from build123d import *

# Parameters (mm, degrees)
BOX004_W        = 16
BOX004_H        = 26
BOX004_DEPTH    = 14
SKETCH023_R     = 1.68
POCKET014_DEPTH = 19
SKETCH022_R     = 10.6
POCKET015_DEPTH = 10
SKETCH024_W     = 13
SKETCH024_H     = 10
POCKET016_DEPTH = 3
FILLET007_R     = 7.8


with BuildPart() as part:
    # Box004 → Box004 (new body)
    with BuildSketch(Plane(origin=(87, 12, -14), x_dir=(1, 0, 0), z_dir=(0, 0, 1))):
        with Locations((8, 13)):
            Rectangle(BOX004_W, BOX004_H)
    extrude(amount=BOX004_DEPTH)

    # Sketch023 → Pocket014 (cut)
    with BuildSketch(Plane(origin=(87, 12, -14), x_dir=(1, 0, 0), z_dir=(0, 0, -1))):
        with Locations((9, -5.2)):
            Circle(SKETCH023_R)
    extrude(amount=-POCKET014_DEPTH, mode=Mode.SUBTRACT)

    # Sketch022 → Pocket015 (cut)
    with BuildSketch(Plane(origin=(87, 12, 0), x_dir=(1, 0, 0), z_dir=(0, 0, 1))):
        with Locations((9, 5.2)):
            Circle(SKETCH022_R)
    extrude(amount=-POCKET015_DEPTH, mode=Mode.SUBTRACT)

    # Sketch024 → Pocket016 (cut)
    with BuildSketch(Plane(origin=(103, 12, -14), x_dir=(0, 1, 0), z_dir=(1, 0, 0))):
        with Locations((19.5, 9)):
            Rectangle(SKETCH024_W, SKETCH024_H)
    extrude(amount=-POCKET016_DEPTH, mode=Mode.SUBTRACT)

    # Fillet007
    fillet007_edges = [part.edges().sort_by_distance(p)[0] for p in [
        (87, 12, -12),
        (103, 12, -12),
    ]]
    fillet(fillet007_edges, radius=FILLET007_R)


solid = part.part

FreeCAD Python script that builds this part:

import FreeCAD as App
import Part
import Sketcher

V = App.Vector


def edges_at(feature, points):
    """Names of the edges that pass closest to the given points."""
    edges = feature.Shape.Edges
    near = lambda p: min(range(len(edges)), key=lambda i: edges[i].distToShape(Part.Vertex(*p))[0])
    return sorted({f"Edge{near(p) + 1}" for p in points})

doc = App.newDocument("Part")
body = doc.addObject("PartDesign::Body", "Body")

# Sketch on XY plane
sketch1 = doc.addObject("Sketcher::SketchObject", "Sketch")
body.addObject(sketch1)
sketch1.AttachmentSupport = (doc.XY_Plane, [""])
sketch1.MapMode = "FlatFace"
sketch1.AttachmentOffset = App.Placement(V(0, 0, -14), App.Rotation())
sketch1.addGeometry([
    Part.LineSegment(V(87, 38, 0), V(87, 12, 0)),
    Part.LineSegment(V(87, 12, 0), V(103, 12, 0)),
    Part.LineSegment(V(103, 12, 0), V(103, 38, 0)),
    Part.LineSegment(V(103, 38, 0), V(87, 38, 0)),
], False)
sketch1.addConstraint([
    Sketcher.Constraint("Coincident", 0, 2, 1, 1),
    Sketcher.Constraint("Coincident", 1, 2, 2, 1),
    Sketcher.Constraint("Coincident", 2, 2, 3, 1),
    Sketcher.Constraint("Coincident", 3, 2, 0, 1),
    Sketcher.Constraint("Vertical", 0),
    Sketcher.Constraint("Horizontal", 1),
    Sketcher.Constraint("Vertical", 2),
    Sketcher.Constraint("Horizontal", 3),
    Sketcher.Constraint("DistanceX", 1, 1, 1, 2, 16.0),
    Sketcher.Constraint("DistanceY", 0, 2, 0, 1, 26.0),
    Sketcher.Constraint("DistanceX", -1, 1, 0, 2, 87.0),
    Sketcher.Constraint("DistanceY", -1, 1, 0, 2, 12.0),
])
pad1 = doc.addObject("PartDesign::Pad", "Pad")
body.addObject(pad1)
pad1.Profile = sketch1
pad1.Length = 14

# Sketch on XY plane
sketch2 = doc.addObject("Sketcher::SketchObject", "Sketch001")
body.addObject(sketch2)
sketch2.AttachmentSupport = (doc.XY_Plane, [""])
sketch2.MapMode = "FlatFace"
sketch2.AttachmentOffset = App.Placement(V(0, 0, -14), App.Rotation())
sketch2.addGeometry(Part.Circle(V(96, 17.2, 0), V(0, 0, 1), 1.7), False)
sketch2.addConstraint([
    Sketcher.Constraint("Diameter", 0, 3.36),
    Sketcher.Constraint("DistanceX", -1, 1, 0, 3, 96.0),
    Sketcher.Constraint("DistanceY", -1, 1, 0, 3, 17.2),
])
pocket1 = doc.addObject("PartDesign::Pocket", "Pocket")
body.addObject(pocket1)
pocket1.Profile = sketch2
pocket1.Length = 19
pocket1.Reversed = True

# Sketch on XY plane
sketch3 = doc.addObject("Sketcher::SketchObject", "Sketch002")
body.addObject(sketch3)
sketch3.AttachmentSupport = (doc.XY_Plane, [""])
sketch3.MapMode = "FlatFace"
sketch3.addGeometry(Part.Circle(V(96, 17, 0), V(0, 0, 1), 11), False)
sketch3.addConstraint([
    Sketcher.Constraint("Diameter", 0, 21.2),
    Sketcher.Constraint("DistanceX", -1, 1, 0, 3, 96.0),
    Sketcher.Constraint("DistanceY", -1, 1, 0, 3, 17.2),
])
pocket2 = doc.addObject("PartDesign::Pocket", "Pocket001")
body.addObject(pocket2)
pocket2.Profile = sketch3
pocket2.Length = 10

# Sketch on YZ plane
sketch4 = doc.addObject("Sketcher::SketchObject", "Sketch003")
body.addObject(sketch4)
sketch4.AttachmentSupport = (doc.YZ_Plane, [""])
sketch4.MapMode = "FlatFace"
sketch4.AttachmentOffset = App.Placement(V(0, 0, 103), App.Rotation())
sketch4.addGeometry([
    Part.LineSegment(V(25, 0, 0), V(25, -10, 0)),
    Part.LineSegment(V(25, -10, 0), V(38, -10, 0)),
    Part.LineSegment(V(38, -10, 0), V(38, 0, 0)),
    Part.LineSegment(V(38, 0, 0), V(25, 0, 0)),
], False)
sketch4.addConstraint([
    Sketcher.Constraint("Coincident", 0, 2, 1, 1),
    Sketcher.Constraint("Coincident", 1, 2, 2, 1),
    Sketcher.Constraint("Coincident", 2, 2, 3, 1),
    Sketcher.Constraint("Coincident", 3, 2, 0, 1),
    Sketcher.Constraint("Vertical", 0),
    Sketcher.Constraint("Horizontal", 1),
    Sketcher.Constraint("Vertical", 2),
    Sketcher.Constraint("Horizontal", 3),
    Sketcher.Constraint("PointOnObject", 2, 2, -1),
    Sketcher.Constraint("DistanceX", 1, 1, 1, 2, 13.0),
    Sketcher.Constraint("DistanceY", 0, 2, 0, 1, 10.0),
    Sketcher.Constraint("DistanceX", -1, 1, 0, 2, 25.0),
])
pocket3 = doc.addObject("PartDesign::Pocket", "Pocket002")
body.addObject(pocket3)
pocket3.Profile = sketch4
pocket3.Length = 3
doc.recompute()

fillet = doc.addObject("PartDesign::Fillet", "Fillet")
body.addObject(fillet)
fillet.Base = (pocket3, edges_at(pocket3, [(87, 12, -12), (103, 12, -12)]))
fillet.Radius = 7.8

doc.recompute()
